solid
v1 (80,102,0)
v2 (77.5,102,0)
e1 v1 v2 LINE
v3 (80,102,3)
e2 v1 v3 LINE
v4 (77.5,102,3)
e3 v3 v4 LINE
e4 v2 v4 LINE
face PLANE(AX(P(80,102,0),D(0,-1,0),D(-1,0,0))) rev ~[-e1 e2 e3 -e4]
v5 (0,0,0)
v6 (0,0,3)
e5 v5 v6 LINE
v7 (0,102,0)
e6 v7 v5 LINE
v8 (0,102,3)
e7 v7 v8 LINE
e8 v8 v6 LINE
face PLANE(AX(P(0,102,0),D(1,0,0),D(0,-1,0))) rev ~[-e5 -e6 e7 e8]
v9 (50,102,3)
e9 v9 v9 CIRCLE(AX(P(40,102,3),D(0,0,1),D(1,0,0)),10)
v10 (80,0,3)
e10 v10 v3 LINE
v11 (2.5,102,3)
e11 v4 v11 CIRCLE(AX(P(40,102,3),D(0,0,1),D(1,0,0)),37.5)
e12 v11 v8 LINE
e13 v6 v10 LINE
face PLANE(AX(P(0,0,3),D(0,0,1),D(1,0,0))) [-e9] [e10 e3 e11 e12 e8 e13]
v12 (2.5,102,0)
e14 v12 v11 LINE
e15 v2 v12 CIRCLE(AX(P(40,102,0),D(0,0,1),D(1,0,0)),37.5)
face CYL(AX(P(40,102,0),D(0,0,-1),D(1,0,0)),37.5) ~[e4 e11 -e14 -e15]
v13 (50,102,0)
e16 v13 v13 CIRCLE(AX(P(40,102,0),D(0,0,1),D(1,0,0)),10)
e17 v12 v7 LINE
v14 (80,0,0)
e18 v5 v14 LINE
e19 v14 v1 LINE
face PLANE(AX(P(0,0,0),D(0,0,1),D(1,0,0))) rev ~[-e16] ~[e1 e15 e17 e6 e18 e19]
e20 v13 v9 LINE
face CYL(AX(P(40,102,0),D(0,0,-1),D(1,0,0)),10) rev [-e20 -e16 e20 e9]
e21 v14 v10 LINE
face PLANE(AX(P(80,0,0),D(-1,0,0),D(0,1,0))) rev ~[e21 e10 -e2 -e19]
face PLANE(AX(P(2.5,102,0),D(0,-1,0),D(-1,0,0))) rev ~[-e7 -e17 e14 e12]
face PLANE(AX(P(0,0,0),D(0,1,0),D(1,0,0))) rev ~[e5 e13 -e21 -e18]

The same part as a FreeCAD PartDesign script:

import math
import FreeCAD as App
import Part
import Sketcher

V = App.Vector

doc = App.newDocument("Part")
body = doc.addObject("PartDesign::Body", "Body")

# Sketch on XY plane
sketch1 = body.newObject("Sketcher::SketchObject", "Sketch")
sketch1.AttachmentSupport = (doc.getObject("XY_Plane"), [""])
sketch1.MapMode = "FlatFace"
sketch1.addGeometry([
    Part.LineSegment(V(0, 102, 0), V(0, 0, 0)),  # 0
    Part.LineSegment(V(0, 0, 0), V(80, 0, 0)),  # 1
    Part.LineSegment(V(80, 0, 0), V(80, 102, 0)),  # 2
    Part.LineSegment(V(80, 102, 0), V(77.5, 102, 0)),  # 3
    Part.ArcOfCircle(Part.Circle(V(40, 102, 0), V(0, 0, 1), 37.5), math.radians(0), math.radians(180)),  # 4
    Part.LineSegment(V(2.5, 102, 0), V(0, 102, 0)),  # 5
    Part.Circle(V(40, 102, 0), V(0, 0, 1), 10),  # 6
], False)
sketch1.addConstraint([
    Sketcher.Constraint("Coincident", 0, 2, 1, 1),
    Sketcher.Constraint("Coincident", 1, 2, 2, 1),
    Sketcher.Constraint("Coincident", 2, 2, 3, 1),
    Sketcher.Constraint("Coincident", 3, 2, 4, 1),
    Sketcher.Constraint("Coincident", 4, 2, 5, 1),
    Sketcher.Constraint("Coincident", 5, 2, 0, 1),
    Sketcher.Constraint("Vertical", 0),
    Sketcher.Constraint("Horizontal", 1),
    Sketcher.Constraint("Vertical", 2),
    Sketcher.Constraint("Horizontal", 3),
    Sketcher.Constraint("Horizontal", 5),
    Sketcher.Constraint("Coincident", 0, 2, -1, 1),
    Sketcher.Constraint("Coincident", 6, 3, 4, 3),
    Sketcher.Constraint("Horizontal", 6, 3, 2, 2),
    Sketcher.Constraint("Horizontal", 3, 2, 4, 2),
    Sketcher.Constraint("Equal", 3, 5),
    Sketcher.Constraint("Diameter", 6, 20.0),
    Sketcher.Constraint("Radius", 4, 37.5),
    Sketcher.Constraint("DistanceX", 1, 1, 1, 2, 80.0),
    Sketcher.Constraint("DistanceY", 0, 2, 0, 1, 102.0),
])
pad1 = body.newObject("PartDesign::Pad", "Pad")
pad1.Profile = sketch1
pad1.Length = 3

doc.recompute()
